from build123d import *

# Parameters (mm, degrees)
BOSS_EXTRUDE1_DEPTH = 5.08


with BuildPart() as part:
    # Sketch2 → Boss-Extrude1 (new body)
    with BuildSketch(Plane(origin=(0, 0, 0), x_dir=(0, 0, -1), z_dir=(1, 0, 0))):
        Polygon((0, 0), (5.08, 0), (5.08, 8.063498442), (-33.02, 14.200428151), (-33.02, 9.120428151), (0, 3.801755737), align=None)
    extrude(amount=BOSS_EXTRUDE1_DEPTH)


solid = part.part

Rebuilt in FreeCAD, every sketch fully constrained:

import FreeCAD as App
import Part
import Sketcher
from FreeCAD import Vector
Q = App.Units.Quantity

doc = App.newDocument("Part")
body = doc.addObject("PartDesign::Body", "Body")

sketch1 = body.newObject("Sketcher::SketchObject", "Sketch")
sketch1.AttachmentSupport = (doc.getObject("YZ_Plane"), [""])
sketch1.MapMode = "FlatFace"
sketch1.addGeometry([
    Part.LineSegment(Vector(0, 0, 0), Vector(0, -5.1, 0)),
    Part.LineSegment(Vector(0, -5.1, 0), Vector(8.1, -5.1, 0)),
    Part.LineSegment(Vector(8.1, -5.1, 0), Vector(14.2, 33, 0)),
    Part.LineSegment(Vector(14.2, 33, 0), Vector(9.1, 33, 0)),
    Part.LineSegment(Vector(9.1, 33, 0), Vector(3.8, 0, 0)),
    Part.LineSegment(Vector(3.8, 0, 0), Vector(0, 0, 0)),
], False)
sketch1.addConstraint([
    Sketcher.Constraint("Coincident", 0, 2, 1, 1),
    Sketcher.Constraint("Coincident", 1, 2, 2, 1),
    Sketcher.Constraint("Coincident", 2, 2, 3, 1),
    Sketcher.Constraint("Coincident", 3, 2, 4, 1),
    Sketcher.Constraint("Coincident", 4, 2, 5, 1),
    Sketcher.Constraint("Coincident", 5, 2, 0, 1),
    Sketcher.Constraint("Vertical", 0),
    Sketcher.Constraint("Horizontal", 1),
    Sketcher.Constraint("Horizontal", 3),
    Sketcher.Constraint("Horizontal", 5),
    Sketcher.Constraint("Coincident", 5, 2, -1, 1),
    Sketcher.Constraint("Parallel", 2, 4),
    Sketcher.Constraint("Equal", 3, 0),
    Sketcher.Constraint("DistanceX", 3, 2, 3, 1, Q("0.2 in")),
    Sketcher.Constraint("DistanceY", -1, 1, 2, 2, Q("1.3 in")),
    Sketcher.Constraint("DistanceX", 1, 1, 1, 2, 8.063498),
    Sketcher.Constraint("DistanceX", 5, 2, 5, 1, 3.801756),
])
pad1 = body.newObject("PartDesign::Pad", "Pad")
pad1.Profile = sketch1
pad1.Length = Q("0.2 in")

doc.recompute()
